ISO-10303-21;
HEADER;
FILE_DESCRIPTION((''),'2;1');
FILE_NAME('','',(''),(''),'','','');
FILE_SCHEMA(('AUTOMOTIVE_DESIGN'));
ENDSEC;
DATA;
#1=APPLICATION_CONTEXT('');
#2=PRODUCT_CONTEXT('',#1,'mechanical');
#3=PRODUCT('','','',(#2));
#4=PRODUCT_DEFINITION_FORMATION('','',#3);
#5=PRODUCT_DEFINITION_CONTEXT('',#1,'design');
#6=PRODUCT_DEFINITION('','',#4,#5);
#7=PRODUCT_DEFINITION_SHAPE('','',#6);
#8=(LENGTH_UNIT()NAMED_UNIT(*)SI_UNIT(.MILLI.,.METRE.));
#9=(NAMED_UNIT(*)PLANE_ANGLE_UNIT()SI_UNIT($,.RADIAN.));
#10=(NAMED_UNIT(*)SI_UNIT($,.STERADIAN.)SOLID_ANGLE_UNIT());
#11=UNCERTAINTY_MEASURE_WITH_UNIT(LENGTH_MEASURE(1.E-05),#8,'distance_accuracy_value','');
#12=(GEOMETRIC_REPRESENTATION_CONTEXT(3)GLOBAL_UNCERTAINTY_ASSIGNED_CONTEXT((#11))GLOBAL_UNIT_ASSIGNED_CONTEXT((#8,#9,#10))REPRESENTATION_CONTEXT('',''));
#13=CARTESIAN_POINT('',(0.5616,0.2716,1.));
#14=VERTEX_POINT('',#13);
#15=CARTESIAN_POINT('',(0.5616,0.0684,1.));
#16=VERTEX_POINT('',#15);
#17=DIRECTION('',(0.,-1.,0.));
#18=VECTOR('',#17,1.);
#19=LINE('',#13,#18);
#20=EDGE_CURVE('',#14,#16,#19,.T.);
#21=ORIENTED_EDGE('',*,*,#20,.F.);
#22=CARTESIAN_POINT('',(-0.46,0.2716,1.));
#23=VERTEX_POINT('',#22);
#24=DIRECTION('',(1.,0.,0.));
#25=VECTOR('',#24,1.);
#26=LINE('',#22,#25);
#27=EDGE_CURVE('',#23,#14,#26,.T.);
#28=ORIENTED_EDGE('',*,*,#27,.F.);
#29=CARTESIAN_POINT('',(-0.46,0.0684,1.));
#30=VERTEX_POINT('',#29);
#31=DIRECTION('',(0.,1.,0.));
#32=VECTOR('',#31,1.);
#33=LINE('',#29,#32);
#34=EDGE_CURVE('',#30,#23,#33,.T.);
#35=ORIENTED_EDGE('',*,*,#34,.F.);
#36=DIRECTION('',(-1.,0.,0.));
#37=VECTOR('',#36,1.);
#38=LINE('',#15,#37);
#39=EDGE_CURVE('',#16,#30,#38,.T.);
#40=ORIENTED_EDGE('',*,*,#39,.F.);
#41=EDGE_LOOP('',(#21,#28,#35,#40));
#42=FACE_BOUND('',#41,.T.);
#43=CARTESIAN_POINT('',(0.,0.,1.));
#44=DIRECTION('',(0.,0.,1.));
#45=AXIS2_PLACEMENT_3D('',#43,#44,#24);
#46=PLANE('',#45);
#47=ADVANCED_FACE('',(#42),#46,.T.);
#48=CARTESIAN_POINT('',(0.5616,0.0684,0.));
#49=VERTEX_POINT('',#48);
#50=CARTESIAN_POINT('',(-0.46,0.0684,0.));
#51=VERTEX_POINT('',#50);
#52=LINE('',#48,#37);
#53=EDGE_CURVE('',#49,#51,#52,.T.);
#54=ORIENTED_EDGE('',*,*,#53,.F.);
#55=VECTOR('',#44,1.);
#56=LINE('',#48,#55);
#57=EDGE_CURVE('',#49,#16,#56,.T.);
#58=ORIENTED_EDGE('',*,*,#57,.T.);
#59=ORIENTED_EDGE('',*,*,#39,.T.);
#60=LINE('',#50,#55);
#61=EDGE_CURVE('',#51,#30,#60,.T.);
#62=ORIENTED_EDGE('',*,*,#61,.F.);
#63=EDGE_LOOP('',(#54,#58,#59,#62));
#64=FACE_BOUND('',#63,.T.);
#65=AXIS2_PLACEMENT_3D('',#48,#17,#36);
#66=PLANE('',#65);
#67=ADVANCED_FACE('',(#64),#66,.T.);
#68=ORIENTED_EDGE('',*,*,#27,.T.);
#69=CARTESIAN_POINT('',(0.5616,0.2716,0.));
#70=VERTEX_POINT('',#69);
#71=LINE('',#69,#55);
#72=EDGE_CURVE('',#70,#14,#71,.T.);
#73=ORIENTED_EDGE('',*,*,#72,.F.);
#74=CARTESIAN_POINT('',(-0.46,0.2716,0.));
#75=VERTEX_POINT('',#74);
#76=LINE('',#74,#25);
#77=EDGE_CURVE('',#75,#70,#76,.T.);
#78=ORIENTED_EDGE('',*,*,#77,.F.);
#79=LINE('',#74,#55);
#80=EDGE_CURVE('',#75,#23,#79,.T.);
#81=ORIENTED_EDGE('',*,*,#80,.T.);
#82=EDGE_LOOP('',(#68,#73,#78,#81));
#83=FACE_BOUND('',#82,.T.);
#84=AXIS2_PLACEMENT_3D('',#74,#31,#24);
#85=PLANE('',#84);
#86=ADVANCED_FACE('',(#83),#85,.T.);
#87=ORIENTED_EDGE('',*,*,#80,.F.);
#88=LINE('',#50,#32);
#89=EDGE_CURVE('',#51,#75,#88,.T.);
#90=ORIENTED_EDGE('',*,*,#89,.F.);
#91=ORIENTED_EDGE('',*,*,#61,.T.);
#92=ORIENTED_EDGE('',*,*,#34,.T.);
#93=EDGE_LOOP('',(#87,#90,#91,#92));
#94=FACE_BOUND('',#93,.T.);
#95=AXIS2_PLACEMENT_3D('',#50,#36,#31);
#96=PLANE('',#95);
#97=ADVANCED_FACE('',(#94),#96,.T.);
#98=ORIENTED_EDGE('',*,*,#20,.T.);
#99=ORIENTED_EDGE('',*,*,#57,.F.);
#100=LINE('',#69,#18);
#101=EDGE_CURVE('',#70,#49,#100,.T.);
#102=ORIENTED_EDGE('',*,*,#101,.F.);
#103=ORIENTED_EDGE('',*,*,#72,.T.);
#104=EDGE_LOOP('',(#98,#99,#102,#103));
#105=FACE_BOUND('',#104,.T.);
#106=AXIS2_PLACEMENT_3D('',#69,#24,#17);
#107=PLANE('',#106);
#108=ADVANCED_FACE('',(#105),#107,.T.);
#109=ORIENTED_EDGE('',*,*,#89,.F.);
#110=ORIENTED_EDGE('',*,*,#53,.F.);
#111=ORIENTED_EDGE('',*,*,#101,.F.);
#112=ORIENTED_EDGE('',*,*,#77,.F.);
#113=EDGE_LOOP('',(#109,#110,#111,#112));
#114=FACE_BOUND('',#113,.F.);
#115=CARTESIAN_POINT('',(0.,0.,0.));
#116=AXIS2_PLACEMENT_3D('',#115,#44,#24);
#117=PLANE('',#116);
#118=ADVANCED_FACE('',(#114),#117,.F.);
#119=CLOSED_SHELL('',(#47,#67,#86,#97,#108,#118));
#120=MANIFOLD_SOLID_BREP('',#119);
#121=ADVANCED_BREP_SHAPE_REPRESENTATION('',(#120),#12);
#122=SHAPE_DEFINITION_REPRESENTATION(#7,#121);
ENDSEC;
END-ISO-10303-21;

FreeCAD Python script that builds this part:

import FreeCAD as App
import Part
import Sketcher

V = App.Vector

doc = App.newDocument("Part")
body = doc.addObject("PartDesign::Body", "Body")

# Sketch on XY plane
sketch1 = doc.addObject("Sketcher::SketchObject", "Sketch")
body.addObject(sketch1)
sketch1.AttachmentSupport = (doc.XY_Plane, [""])
sketch1.MapMode = "FlatFace"
sketch1.addGeometry(Part.LineSegment(V(0.56, 0.27, 0), V(-0.46, 0.27, 0)), False)
sketch1.addGeometry(Part.LineSegment(V(-0.46, 0.27, 0), V(-0.46, 0.07, 0)), False)
sketch1.addGeometry(Part.LineSegment(V(-0.46, 0.07, 0), V(0.56, 0.07, 0)), False)
sketch1.addGeometry(Part.LineSegment(V(0.56, 0.07, 0), V(0.56, 0.27, 0)), False)
sketch1.addConstraint(Sketcher.Constraint("Coincident", 0, 2, 1, 1))
sketch1.addConstraint(Sketcher.Constraint("Coincident", 1, 2, 2, 1))
sketch1.addConstraint(Sketcher.Constraint("Coincident", 2, 2, 3, 1))
sketch1.addConstraint(Sketcher.Constraint("Coincident", 3, 2, 0, 1))
sketch1.addConstraint(Sketcher.Constraint("Horizontal", 0))
sketch1.addConstraint(Sketcher.Constraint("Vertical", 1))
sketch1.addConstraint(Sketcher.Constraint("Horizontal", 2))
sketch1.addConstraint(Sketcher.Constraint("Vertical", 3))
sketch1.addConstraint(Sketcher.Constraint("DistanceX", 0, 2, -1, 1, 0.46))
sketch1.addConstraint(Sketcher.Constraint("DistanceX", 0, 2, 0, 1, 1.0216))
sketch1.addConstraint(Sketcher.Constraint("DistanceY", 1, 2, 1, 1, 0.2032))
sketch1.addConstraint(Sketcher.Constraint("DistanceY", -1, 1, 0, 2, 0.2716))
pad1 = doc.addObject("PartDesign::Pad", "Pad")
body.addObject(pad1)
pad1.Profile = sketch1
pad1.Length = 1

doc.recompute()
